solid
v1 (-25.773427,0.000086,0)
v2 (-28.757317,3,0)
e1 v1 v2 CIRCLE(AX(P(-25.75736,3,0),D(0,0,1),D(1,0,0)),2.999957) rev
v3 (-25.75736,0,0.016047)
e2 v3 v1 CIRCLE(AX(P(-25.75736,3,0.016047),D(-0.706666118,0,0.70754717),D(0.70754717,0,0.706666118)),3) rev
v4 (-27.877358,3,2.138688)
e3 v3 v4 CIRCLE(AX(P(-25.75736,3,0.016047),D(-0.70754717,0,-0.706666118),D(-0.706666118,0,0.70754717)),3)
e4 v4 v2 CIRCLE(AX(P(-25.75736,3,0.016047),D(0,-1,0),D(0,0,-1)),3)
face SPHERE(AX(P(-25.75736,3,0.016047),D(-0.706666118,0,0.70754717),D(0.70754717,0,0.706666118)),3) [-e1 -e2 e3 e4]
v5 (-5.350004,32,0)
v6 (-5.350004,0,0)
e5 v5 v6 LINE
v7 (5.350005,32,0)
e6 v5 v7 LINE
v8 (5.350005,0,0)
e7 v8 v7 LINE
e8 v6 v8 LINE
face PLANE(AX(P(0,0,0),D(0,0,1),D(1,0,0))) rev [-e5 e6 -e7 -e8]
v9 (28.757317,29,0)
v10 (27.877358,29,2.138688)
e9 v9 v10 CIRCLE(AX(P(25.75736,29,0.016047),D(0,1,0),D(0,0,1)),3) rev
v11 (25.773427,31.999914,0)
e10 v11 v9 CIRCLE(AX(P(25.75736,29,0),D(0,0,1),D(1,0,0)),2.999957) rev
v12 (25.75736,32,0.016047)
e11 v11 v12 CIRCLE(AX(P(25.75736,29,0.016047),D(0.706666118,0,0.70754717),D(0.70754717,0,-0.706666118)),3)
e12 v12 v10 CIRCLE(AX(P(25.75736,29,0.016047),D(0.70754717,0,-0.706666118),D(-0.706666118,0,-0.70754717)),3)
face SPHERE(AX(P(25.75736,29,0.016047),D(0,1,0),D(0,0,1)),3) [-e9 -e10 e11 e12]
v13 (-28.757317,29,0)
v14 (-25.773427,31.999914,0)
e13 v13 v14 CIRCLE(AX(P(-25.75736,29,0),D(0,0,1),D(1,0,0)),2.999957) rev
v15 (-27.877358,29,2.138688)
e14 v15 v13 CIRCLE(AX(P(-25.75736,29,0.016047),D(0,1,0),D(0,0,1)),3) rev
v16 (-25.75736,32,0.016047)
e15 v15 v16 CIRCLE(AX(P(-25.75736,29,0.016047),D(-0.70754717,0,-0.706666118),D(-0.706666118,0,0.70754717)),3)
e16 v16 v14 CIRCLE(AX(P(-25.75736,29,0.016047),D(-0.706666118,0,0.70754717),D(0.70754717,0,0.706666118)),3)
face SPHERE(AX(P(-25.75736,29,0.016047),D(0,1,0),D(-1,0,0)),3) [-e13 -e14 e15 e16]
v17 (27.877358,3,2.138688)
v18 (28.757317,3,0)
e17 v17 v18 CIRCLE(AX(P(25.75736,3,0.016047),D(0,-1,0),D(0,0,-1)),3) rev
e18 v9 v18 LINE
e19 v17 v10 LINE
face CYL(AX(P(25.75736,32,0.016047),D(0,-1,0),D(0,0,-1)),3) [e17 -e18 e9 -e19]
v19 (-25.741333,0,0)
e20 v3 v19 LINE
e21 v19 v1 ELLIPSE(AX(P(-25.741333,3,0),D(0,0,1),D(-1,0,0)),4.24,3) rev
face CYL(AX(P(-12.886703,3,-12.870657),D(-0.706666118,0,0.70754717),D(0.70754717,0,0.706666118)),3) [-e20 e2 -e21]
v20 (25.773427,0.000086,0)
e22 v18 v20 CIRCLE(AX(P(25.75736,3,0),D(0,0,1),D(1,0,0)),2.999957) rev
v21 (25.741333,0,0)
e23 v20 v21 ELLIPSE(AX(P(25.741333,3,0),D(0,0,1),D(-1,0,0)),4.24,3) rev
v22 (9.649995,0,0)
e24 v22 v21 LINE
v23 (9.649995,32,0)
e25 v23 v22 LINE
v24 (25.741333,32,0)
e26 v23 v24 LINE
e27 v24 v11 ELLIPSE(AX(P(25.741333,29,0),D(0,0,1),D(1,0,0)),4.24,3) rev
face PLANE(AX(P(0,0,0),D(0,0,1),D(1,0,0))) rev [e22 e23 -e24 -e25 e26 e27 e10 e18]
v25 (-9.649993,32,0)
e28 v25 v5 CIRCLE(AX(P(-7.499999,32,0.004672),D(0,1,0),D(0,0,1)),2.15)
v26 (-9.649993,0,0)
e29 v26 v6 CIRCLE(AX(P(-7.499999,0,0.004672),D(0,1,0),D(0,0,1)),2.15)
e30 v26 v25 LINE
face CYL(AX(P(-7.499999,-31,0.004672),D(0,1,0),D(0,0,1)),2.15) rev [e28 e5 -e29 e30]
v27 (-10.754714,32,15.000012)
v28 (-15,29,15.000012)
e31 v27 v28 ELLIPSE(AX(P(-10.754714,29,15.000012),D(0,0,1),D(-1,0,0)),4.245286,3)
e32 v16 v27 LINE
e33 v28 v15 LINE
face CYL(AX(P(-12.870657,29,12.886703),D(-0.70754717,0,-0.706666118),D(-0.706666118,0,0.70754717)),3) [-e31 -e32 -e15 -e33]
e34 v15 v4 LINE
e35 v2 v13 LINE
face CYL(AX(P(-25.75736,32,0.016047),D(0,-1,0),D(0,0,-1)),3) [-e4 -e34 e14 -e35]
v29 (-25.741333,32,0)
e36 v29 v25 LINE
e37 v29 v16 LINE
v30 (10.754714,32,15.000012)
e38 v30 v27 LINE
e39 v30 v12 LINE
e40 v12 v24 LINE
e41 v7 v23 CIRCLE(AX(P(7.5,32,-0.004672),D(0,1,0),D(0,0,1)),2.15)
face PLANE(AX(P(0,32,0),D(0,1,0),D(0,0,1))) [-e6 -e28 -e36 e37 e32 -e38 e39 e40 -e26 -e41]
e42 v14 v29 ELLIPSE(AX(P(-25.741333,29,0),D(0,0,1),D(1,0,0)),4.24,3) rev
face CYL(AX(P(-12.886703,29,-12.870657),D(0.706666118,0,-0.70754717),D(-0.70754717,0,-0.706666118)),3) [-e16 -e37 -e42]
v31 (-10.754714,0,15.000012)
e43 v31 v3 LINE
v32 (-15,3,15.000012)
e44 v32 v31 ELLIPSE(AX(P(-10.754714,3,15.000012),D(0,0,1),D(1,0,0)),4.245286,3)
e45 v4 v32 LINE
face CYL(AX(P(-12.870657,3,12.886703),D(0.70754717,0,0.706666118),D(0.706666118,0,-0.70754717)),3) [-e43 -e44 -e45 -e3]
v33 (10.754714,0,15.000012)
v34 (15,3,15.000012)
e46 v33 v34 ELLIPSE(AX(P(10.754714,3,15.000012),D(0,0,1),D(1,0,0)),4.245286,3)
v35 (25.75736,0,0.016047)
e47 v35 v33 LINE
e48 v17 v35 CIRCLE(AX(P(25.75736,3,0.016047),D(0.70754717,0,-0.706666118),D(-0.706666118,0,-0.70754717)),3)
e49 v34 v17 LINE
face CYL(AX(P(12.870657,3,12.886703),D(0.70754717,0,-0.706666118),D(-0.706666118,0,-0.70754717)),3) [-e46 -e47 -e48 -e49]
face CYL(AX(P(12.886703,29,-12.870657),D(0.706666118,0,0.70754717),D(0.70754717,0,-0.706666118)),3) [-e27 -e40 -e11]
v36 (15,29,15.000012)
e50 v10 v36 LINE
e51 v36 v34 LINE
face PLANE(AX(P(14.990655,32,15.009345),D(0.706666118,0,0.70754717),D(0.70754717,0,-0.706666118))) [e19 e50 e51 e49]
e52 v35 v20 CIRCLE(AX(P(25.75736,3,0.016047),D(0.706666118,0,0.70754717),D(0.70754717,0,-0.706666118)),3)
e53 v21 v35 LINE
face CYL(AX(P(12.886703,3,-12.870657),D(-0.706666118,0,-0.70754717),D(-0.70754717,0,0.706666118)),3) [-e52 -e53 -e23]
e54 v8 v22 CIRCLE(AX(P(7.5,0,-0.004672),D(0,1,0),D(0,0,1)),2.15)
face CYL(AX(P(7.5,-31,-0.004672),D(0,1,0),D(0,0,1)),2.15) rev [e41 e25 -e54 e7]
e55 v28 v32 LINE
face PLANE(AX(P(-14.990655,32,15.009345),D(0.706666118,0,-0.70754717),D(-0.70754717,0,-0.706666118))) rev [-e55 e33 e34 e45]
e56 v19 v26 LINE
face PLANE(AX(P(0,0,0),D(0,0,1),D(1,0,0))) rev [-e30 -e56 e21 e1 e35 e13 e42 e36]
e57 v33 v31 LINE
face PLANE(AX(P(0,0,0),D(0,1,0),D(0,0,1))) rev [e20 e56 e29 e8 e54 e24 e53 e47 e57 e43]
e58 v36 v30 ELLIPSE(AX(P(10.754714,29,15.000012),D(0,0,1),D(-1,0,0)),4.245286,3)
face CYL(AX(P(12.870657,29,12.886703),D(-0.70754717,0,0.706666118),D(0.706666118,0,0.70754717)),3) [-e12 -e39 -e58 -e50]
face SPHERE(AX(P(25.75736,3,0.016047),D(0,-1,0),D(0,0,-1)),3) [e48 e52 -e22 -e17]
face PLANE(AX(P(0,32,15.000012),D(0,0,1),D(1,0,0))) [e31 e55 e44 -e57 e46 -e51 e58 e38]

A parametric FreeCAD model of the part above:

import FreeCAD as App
import Part
import Sketcher
from FreeCAD import Vector
Q = App.Units.Quantity


def edges_at(feature, points):
    """Names of the edges that pass closest to the given points."""
    edges = feature.Shape.Edges
    near = lambda p: min(range(len(edges)), key=lambda i: edges[i].distToShape(Part.Vertex(*p))[0])
    return sorted({f"Edge{near(p) + 1}" for p in points})


def add_polygon(sketch, points):
    """Adds a closed chain of lines whose ends are joined by coincident constraints."""
    first, n = sketch.GeometryCount, len(points)
    for a, b in zip(points, points[1:] + points[:1]):
        sketch.addGeometry(Part.LineSegment(App.Vector(*a, 0), App.Vector(*b, 0)), False)
    for i in range(n):
        sketch.addConstraint(Sketcher.Constraint("Coincident", first + i, 2, first + (i + 1) % n, 1))

doc = App.newDocument("Part")
body = doc.addObject("PartDesign::Body", "Body")

# Sketch on XZ plane
sketch1 = body.newObject("Sketcher::SketchObject", "Sketch")
sketch1.AttachmentSupport = (doc.getObject("XZ_Plane"), [""])
sketch1.MapMode = "FlatFace"
add_polygon(sketch1, [(-30, 0), (-15, 15), (15, 15), (30, 0), (15, -15), (-15, -15)])  # lines 0-5
sketch1.addConstraint([
    Sketcher.Constraint("Horizontal", 1),
    Sketcher.Constraint("Horizontal", 4),
    Sketcher.Constraint("Symmetric", 0, 2, 3, 2, -1, 1),
    Sketcher.Constraint("Symmetric", 2, 2, 5, 2, -2),
    Sketcher.Constraint("Perpendicular", 2, 3),
    Sketcher.Constraint("Perpendicular", 0, 5),
    Sketcher.Constraint("Vertical", 1, 2, 3, 2),
    Sketcher.Constraint("DistanceX", 1, 1, 1, 2, Q("30 mm")),
    Sketcher.Constraint("DistanceX", -1, 1, 2, 2, Q("30 mm")),
    Sketcher.Constraint("Distance", 0, Q("21.2 mm")),
])
pad1 = body.newObject("PartDesign::Pad", "Pad")
pad1.Profile = sketch1
pad1.Length = 32
pad1.Reversed = True
doc.recompute()

fillet = body.newObject("PartDesign::Fillet", "Fillet")
fillet.Base = (pad1, edges_at(pad1, [
    (-22.5, 0, 7.509),
    (-30, 16, 0.019),
    (30, 16, 0.019),
    (22.5, 32, 7.509),
    (22.5, 32, -7.491),
    (-22.5, 32, -7.491),
    (-22.5, 32, 7.509),
    (-22.5, 0, -7.491),
    (22.5, 0, -7.491),
    (22.5, 0, 7.509),
]))
fillet.Radius = 3

# Sketch on XZ plane
sketch2 = body.newObject("Sketcher::SketchObject", "Sketch001")
sketch2.AttachmentSupport = (doc.getObject("XZ_Plane"), [""])
sketch2.MapMode = "FlatFace"
sketch2.AttachmentOffset = App.Placement(Vector(0, 0, -32), App.Rotation())
sketch2.addGeometry([
    Part.Circle(Vector(-7.5, 0, 0), Vector(0, 0, 1), 2.1),
    Part.Circle(Vector(7.5, 0, 0), Vector(0, 0, 1), 2.1),
], False)
sketch2.addConstraint([
    Sketcher.Constraint("Equal", 0, 1),
    Sketcher.Constraint("Symmetric", 0, 3, 1, 3, -1, 1),
    Sketcher.Constraint("Diameter", 0, Q("4.3 mm")),
    Sketcher.Constraint("DistanceX", 0, 3, 1, 3, Q("14.999999 mm")),
    Sketcher.Constraint("DistanceY", -1, 1, 0, 3, Q("0.004672 mm")),
])
pocket1 = body.newObject("PartDesign::Pocket", "Pocket")
pocket1.Profile = sketch2
pocket1.Length = 63
pocket1.Reversed = True

# Sketch on XY plane
sketch3 = body.newObject("Sketcher::SketchObject", "Sketch002")
sketch3.AttachmentSupport = (doc.getObject("XY_Plane"), [""])
sketch3.MapMode = "FlatFace"
add_polygon(sketch3, [(-36, 38), (-36, -1), (42, -1), (42, 38)])  # lines 0-3
sketch3.addConstraint([
    Sketcher.Constraint("Vertical", 0),
    Sketcher.Constraint("Horizontal", 1),
    Sketcher.Constraint("Vertical", 2),
    Sketcher.Constraint("Horizontal", 3),
    Sketcher.Constraint("DistanceX", 1, 1, 1, 2, Q("78.057106 mm")),
    Sketcher.Constraint("DistanceY", 0, 2, 0, 1, Q("38.470116 mm")),
    Sketcher.Constraint("DistanceY", -1, 1, 2, 2, Q("37.623928 mm")),
    Sketcher.Constraint("DistanceX", 0, 2, -1, 1, Q("35.988173 mm")),
])
pocket2 = body.newObject("PartDesign::Pocket", "Pocket001")
pocket2.Profile = sketch3
pocket2.Length = 63

doc.recompute()
